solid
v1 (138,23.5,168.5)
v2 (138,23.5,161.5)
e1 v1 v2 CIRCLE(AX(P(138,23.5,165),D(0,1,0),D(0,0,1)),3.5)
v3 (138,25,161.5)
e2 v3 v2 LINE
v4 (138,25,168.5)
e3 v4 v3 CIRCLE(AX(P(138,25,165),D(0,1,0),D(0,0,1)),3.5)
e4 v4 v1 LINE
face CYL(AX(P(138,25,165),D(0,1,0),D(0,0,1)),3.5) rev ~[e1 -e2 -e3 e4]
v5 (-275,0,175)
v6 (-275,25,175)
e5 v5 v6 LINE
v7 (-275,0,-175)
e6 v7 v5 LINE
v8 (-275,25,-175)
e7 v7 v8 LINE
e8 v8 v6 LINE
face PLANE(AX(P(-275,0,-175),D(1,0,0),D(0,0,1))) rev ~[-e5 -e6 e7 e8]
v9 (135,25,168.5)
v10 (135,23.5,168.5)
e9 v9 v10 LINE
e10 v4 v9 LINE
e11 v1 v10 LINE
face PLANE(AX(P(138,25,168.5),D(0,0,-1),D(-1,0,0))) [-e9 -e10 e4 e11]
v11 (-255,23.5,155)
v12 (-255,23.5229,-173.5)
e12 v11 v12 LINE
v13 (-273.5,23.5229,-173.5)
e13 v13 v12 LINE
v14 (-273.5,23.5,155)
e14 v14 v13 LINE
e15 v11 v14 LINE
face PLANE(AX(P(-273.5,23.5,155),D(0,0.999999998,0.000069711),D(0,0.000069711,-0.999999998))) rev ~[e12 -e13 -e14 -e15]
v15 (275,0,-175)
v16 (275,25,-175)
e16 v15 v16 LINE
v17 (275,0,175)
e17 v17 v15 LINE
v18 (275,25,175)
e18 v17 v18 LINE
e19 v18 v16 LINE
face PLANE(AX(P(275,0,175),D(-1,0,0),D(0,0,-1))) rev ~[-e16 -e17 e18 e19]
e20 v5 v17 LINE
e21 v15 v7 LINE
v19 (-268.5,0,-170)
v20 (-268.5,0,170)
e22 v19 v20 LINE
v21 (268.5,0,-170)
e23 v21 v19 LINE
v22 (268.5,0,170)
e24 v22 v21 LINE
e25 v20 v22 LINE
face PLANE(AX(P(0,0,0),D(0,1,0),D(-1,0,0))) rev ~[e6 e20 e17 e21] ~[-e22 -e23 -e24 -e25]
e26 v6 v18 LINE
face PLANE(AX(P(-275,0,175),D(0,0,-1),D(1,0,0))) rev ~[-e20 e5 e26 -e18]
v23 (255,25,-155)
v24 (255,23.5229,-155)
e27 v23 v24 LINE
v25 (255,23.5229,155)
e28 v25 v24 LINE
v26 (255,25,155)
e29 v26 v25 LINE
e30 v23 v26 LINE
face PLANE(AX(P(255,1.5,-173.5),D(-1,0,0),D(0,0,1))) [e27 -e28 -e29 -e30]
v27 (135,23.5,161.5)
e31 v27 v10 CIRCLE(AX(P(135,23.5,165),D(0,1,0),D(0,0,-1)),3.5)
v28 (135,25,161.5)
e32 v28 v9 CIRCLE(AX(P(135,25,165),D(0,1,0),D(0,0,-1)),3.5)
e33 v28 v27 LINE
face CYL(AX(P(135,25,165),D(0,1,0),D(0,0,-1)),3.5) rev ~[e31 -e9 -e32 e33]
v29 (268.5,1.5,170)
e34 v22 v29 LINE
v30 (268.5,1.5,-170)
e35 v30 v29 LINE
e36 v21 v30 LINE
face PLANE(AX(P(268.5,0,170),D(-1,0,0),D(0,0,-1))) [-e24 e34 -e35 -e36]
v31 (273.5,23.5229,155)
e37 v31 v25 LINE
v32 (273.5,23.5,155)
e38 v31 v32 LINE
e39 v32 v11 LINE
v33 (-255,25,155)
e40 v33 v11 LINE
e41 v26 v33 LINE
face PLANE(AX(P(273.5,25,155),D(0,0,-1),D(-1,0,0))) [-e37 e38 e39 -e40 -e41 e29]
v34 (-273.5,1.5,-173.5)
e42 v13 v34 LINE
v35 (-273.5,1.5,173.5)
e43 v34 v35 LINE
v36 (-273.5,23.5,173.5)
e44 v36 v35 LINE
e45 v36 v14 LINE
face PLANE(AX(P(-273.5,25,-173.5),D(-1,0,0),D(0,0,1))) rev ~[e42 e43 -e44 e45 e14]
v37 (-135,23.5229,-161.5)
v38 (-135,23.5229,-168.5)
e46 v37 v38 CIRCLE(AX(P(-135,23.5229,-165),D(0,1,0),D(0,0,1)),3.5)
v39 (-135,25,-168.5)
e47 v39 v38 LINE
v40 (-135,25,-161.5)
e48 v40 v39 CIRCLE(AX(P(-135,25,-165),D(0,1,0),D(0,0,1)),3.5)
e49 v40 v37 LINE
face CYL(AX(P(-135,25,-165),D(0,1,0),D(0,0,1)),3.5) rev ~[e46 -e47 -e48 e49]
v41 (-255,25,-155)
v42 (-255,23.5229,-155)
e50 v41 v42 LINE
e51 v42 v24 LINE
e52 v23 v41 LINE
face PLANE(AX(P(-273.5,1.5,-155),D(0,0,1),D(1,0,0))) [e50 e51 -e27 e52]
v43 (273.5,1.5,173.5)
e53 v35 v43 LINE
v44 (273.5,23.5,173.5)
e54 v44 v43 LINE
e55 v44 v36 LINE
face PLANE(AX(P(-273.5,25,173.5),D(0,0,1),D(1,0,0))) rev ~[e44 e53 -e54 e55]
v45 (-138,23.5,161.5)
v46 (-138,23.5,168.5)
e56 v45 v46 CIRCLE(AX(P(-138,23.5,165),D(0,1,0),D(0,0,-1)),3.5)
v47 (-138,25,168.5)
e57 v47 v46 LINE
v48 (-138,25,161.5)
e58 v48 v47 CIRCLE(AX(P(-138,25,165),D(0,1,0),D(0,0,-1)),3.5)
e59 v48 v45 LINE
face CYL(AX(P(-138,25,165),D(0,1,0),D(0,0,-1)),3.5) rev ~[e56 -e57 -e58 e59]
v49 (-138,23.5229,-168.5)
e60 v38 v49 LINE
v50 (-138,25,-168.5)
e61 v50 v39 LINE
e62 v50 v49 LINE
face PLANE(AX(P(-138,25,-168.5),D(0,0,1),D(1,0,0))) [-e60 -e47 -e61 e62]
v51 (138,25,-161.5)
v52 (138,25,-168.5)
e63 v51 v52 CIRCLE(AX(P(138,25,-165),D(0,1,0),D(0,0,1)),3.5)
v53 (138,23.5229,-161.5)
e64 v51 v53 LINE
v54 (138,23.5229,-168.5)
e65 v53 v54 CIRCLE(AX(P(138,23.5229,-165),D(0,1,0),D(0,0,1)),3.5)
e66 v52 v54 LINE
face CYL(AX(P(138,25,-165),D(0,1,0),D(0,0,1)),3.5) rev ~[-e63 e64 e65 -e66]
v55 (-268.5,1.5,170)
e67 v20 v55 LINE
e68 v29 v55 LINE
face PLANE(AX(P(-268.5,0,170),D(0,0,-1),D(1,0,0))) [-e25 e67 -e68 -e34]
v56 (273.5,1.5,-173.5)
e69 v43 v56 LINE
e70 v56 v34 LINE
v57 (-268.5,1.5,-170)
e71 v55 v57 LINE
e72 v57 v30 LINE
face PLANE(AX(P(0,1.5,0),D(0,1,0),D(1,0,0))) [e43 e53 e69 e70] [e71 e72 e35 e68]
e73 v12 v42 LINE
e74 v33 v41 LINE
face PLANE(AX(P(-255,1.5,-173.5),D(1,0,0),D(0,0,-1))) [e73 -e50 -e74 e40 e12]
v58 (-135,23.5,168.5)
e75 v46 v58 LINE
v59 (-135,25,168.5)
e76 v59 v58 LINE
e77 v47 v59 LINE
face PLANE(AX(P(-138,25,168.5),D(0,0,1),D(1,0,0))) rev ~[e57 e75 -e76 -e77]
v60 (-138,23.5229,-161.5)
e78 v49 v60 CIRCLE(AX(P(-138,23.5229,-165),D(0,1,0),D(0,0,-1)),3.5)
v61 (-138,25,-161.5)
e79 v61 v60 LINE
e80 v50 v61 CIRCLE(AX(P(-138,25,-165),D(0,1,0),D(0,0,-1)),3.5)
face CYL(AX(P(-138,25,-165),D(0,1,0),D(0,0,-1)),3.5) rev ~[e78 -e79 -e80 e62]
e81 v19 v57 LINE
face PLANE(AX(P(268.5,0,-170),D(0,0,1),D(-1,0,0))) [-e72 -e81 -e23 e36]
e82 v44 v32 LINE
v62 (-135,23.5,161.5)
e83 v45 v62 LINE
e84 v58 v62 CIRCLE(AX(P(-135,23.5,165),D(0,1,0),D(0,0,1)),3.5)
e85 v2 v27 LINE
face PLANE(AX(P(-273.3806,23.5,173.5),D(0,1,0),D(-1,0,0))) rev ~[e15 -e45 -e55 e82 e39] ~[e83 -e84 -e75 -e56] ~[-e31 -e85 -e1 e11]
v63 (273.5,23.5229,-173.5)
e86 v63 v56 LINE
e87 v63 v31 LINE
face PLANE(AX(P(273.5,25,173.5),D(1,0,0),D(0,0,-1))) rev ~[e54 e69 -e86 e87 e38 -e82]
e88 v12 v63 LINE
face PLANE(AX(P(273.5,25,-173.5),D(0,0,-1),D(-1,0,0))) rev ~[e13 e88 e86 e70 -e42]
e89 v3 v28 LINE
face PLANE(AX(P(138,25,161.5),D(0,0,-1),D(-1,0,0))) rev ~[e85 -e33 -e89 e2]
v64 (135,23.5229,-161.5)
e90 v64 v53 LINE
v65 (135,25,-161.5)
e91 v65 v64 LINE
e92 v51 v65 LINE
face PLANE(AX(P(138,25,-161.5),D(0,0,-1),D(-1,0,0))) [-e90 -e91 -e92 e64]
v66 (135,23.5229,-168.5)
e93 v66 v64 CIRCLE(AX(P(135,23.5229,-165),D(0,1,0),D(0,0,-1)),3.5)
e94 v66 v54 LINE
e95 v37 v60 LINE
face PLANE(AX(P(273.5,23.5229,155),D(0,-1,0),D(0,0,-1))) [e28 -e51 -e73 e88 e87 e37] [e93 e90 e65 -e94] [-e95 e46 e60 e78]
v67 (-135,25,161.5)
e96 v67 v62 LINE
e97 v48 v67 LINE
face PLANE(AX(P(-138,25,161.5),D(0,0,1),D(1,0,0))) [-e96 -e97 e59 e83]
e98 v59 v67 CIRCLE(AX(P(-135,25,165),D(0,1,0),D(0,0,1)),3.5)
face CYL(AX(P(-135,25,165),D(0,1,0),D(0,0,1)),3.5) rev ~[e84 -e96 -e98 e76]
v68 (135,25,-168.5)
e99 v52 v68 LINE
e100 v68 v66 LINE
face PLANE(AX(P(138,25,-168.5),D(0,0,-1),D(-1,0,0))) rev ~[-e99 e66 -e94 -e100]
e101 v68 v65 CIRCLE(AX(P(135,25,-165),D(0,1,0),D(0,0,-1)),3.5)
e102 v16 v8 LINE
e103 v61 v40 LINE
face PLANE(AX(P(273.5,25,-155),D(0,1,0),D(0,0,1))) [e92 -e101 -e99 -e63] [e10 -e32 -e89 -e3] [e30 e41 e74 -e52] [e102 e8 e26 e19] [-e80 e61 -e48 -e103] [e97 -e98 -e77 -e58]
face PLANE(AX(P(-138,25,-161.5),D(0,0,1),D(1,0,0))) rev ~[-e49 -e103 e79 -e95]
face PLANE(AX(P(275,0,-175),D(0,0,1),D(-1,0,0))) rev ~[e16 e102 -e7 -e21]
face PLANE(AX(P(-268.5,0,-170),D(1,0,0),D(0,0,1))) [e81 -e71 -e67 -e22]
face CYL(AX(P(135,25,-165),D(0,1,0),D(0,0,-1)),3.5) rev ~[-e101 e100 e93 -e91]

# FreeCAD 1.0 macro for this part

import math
import FreeCAD as App
import Part
import Sketcher
Q = App.Units.Quantity


def add_polygon(sketch, points):
    """Adds a closed chain of lines whose ends are joined by coincident constraints."""
    first, n = sketch.GeometryCount, len(points)
    for a, b in zip(points, points[1:] + points[:1]):
        sketch.addGeometry(Part.LineSegment(App.Vector(*a, 0), App.Vector(*b, 0)), False)
    for i in range(n):
        sketch.addConstraint(Sketcher.Constraint("Coincident", first + i, 2, first + (i + 1) % n, 1))

doc = App.newDocument("Part")
body = doc.addObject("PartDesign::Body", "Body")

# Sketch on XZ plane
sketch1 = doc.addObject("Sketcher::SketchObject", "Sketch")
body.addObject(sketch1)
sketch1.AttachmentSupport = (doc.XZ_Plane, [""])
sketch1.MapMode = "FlatFace"
add_polygon(sketch1, [(275, 175), (275, -175), (-275, -175), (-275, 175)])  # lines 0-3
sketch1.addConstraint([
    Sketcher.Constraint("Vertical", 0),
    Sketcher.Constraint("Horizontal", 1),
    Sketcher.Constraint("Vertical", 2),
    Sketcher.Constraint("Horizontal", 3),
    Sketcher.Constraint("Symmetric", 0, 2, 2, 2, -1, 1),
    Sketcher.Constraint("DistanceX", 1, 2, 1, 1, Q("550 mm")),
    Sketcher.Constraint("DistanceY", 0, 2, 0, 1, Q("350 mm")),
])
pad1 = doc.addObject("PartDesign::Pad", "Pad")
body.addObject(pad1)
pad1.Profile = sketch1
pad1.Length = 25
pad1.Reversed = True

# Sketch on XZ plane
sketch2 = doc.addObject("Sketcher::SketchObject", "Sketch001")
body.addObject(sketch2)
sketch2.AttachmentSupport = (doc.XZ_Plane, [""])
sketch2.MapMode = "FlatFace"
sketch2.AttachmentOffset = App.Placement(App.Vector(0, 0, -25), App.Rotation())
add_polygon(sketch2, [(274, 174), (274, -174), (-274, -174), (-274, 174)])  # lines 0-3
sketch2.addConstraint([
    Sketcher.Constraint("Vertical", 0),
    Sketcher.Constraint("Horizontal", 1),
    Sketcher.Constraint("Vertical", 2),
    Sketcher.Constraint("Horizontal", 3),
    Sketcher.Constraint("Symmetric", 0, 2, 2, 2, -1, 1),
    Sketcher.Constraint("DistanceX", 1, 2, 1, 1, Q("547 mm")),
    Sketcher.Constraint("DistanceY", 0, 2, 0, 1, Q("347 mm")),
])
pocket1 = doc.addObject("PartDesign::Pocket", "Pocket")
body.addObject(pocket1)
pocket1.Profile = sketch2
pocket1.Length = 23.5
pocket1.Reversed = True

# Sketch on XY plane
sketch3 = doc.addObject("Sketcher::SketchObject", "Sketch002")
body.addObject(sketch3)
sketch3.AttachmentSupport = (doc.XY_Plane, [""])
sketch3.MapMode = "FlatFace"
sketch3.AttachmentOffset = App.Placement(App.Vector(0, 0, 173.5), App.Rotation())
add_polygon(sketch3, [(-273.5, 25), (273.5, 25), (273.5, 23.5), (-273.5, 23.5)])  # lines 0-3
sketch3.addConstraint([
    Sketcher.Constraint("Horizontal", 0),
    Sketcher.Constraint("Vertical", 1),
    Sketcher.Constraint("Horizontal", 2),
    Sketcher.Constraint("Vertical", 3),
    Sketcher.Constraint("DistanceY", 1, 2, 1, 1, Q("1.5 mm")),
    Sketcher.Constraint("DistanceX", 0, 1, 0, 2, Q("547 mm")),
    Sketcher.Constraint("DistanceY", -1, 1, 0, 2, Q("25 mm")),
    Sketcher.Constraint("DistanceX", -1, 1, 0, 2, Q("273.5 mm")),
])
pad2 = doc.addObject("PartDesign::Pad", "Pad001")
body.addObject(pad2)
pad2.Profile = sketch3
pad2.Length = 18.5
pad2.Reversed = True

# Sketch on YZ plane
sketch4 = doc.addObject("Sketcher::SketchObject", "Sketch003")
body.addObject(sketch4)
sketch4.AttachmentSupport = (doc.YZ_Plane, [""])
sketch4.MapMode = "FlatFace"
sketch4.AttachmentOffset = App.Placement(App.Vector(0, 0, -273.5), App.Rotation())
add_polygon(sketch4, [(25, -173.5), (25, 155), (23.5, 155), (23.5, -173.5)])  # lines 0-3
sketch4.addConstraint([
    Sketcher.Constraint("Vertical", 0),
    Sketcher.Constraint("Horizontal", 1),
    Sketcher.Constraint("Horizontal", 3),
    Sketcher.Constraint("DistanceX", 1, 2, 1, 1, Q("1.5 mm")),
    Sketcher.Constraint("DistanceY", 0, 1, 0, 2, Q("328.5 mm")),
    Sketcher.Constraint("DistanceX", -1, 1, 0, 2, Q("25 mm")),
    Sketcher.Constraint("DistanceY", -1, 1, 0, 2, Q("155 mm")),
    Sketcher.Constraint("DistanceX", 3, 1, 3, 2, Q("1.477 mm")),
])
pad3 = doc.addObject("PartDesign::Pad", "Pad002")
body.addObject(pad3)
pad3.Profile = sketch4
pad3.Length = 18.5

# Sketch on XY plane
sketch5 = doc.addObject("Sketcher::SketchObject", "Sketch004")
body.addObject(sketch5)
sketch5.AttachmentSupport = (doc.XY_Plane, [""])
sketch5.MapMode = "FlatFace"
sketch5.AttachmentOffset = App.Placement(App.Vector(0, 0, -173.5), App.Rotation())
add_polygon(sketch5, [(273.5, 23.5), (273.5, 25), (-255, 25), (-255, 23.5)])  # lines 0-3
sketch5.addConstraint([
    Sketcher.Constraint("Vertical", 0),
    Sketcher.Constraint("Horizontal", 1),
    Sketcher.Constraint("Vertical", 2),
    Sketcher.Constraint("Horizontal", 3),
    Sketcher.Constraint("DistanceX", 1, 2, 1, 1, Q("528.5 mm")),
    Sketcher.Constraint("DistanceY", -1, 1, 0, 2, Q("25 mm")),
    Sketcher.Constraint("DistanceX", 1, 2, -1, 1, Q("255 mm")),
    Sketcher.Constraint("DistanceY", 0, 1, 0, 2, Q("1.477 mm")),
])
pad4 = doc.addObject("PartDesign::Pad", "Pad003")
body.addObject(pad4)
pad4.Profile = sketch5
pad4.Length = 18.5

# Sketch on YZ plane
sketch6 = doc.addObject("Sketcher::SketchObject", "Sketch005")
body.addObject(sketch6)
sketch6.AttachmentSupport = (doc.YZ_Plane, [""])
sketch6.MapMode = "FlatFace"
sketch6.AttachmentOffset = App.Placement(App.Vector(0, 0, 273.5), App.Rotation())
add_polygon(sketch6, [(25, 155), (25, -155), (23.5, -155), (23.5, 155)])  # lines 0-3
sketch6.addConstraint([
    Sketcher.Constraint("Vertical", 0),
    Sketcher.Constraint("Horizontal", 1),
    Sketcher.Constraint("Vertical", 2),
    Sketcher.Constraint("Horizontal", 3),
    Sketcher.Constraint("DistanceY", 0, 2, 0, 1, Q("310 mm")),
    Sketcher.Constraint("DistanceX", -1, 1, 0, 2, Q("25 mm")),
    Sketcher.Constraint("DistanceY", 0, 2, -1, 1, Q("155 mm")),
    Sketcher.Constraint("DistanceX", 1, 2, 1, 1, Q("1.477 mm")),
])
pad5 = doc.addObject("PartDesign::Pad", "Pad004")
body.addObject(pad5)
pad5.Profile = sketch6
pad5.Length = 18.5
pad5.Reversed = True

# Sketch on XZ plane
sketch7 = doc.addObject("Sketcher::SketchObject", "Sketch006")
body.addObject(sketch7)
sketch7.AttachmentSupport = (doc.XZ_Plane, [""])
sketch7.MapMode = "FlatFace"
add_polygon(sketch7, [(-268, -170), (268, -170), (268, 170), (-268, 170)])  # lines 0-3
sketch7.addConstraint([
    Sketcher.Constraint("Horizontal", 0),
    Sketcher.Constraint("Vertical", 1),
    Sketcher.Constraint("Horizontal", 2),
    Sketcher.Constraint("Vertical", 3),
    Sketcher.Constraint("Symmetric", 0, 2, 2, 2, -1, 1),
    Sketcher.Constraint("DistanceX", 0, 1, 0, 2, Q("537 mm")),
    Sketcher.Constraint("DistanceY", 1, 1, 1, 2, Q("340 mm")),
])
pocket2 = doc.addObject("PartDesign::Pocket", "Pocket001")
body.addObject(pocket2)
pocket2.Profile = sketch7
pocket2.Length = 10

# Sketch on XZ plane
sketch8 = doc.addObject("Sketcher::SketchObject", "Sketch007")
body.addObject(sketch8)
sketch8.AttachmentSupport = (doc.XZ_Plane, [""])
sketch8.MapMode = "FlatFace"
sketch8.AttachmentOffset = App.Placement(App.Vector(0, 0, -25), App.Rotation())
sketch8.addGeometry([
    Part.LineSegment(App.Vector(-135, 161.5, 0), App.Vector(-138, 161.5, 0)),  # 0
    Part.ArcOfCircle(Part.Circle(App.Vector(-138, 165, 0), App.Vector(0, 0, 1), 3.5), math.radians(90), math.radians(270)),  # 1
    Part.LineSegment(App.Vector(-138, 168.5, 0), App.Vector(-135, 168.5, 0)),  # 2
    Part.ArcOfCircle(Part.Circle(App.Vector(-135, 165, 0), App.Vector(0, 0, 1), 3.5), math.radians(-90), math.radians(90)),  # 3
    Part.ArcOfCircle(Part.Circle(App.Vector(138, 165, 0), App.Vector(0, 0, 1), 3.5), math.radians(-90), math.radians(90)),  # 4
    Part.LineSegment(App.Vector(138, 161.5, 0), App.Vector(135, 161.5, 0)),  # 5
    Part.ArcOfCircle(Part.Circle(App.Vector(135, 165, 0), App.Vector(0, 0, 1), 3.5), math.radians(90), math.radians(270)),  # 6
    Part.LineSegment(App.Vector(135, 168.5, 0), App.Vector(138, 168.5, 0)),  # 7
    Part.ArcOfCircle(Part.Circle(App.Vector(-138, -165, 0), App.Vector(0, 0, 1), 3.5), math.radians(90), math.radians(270)),  # 8
    Part.LineSegment(App.Vector(-138, -161.5, 0), App.Vector(-135, -161.5, 0)),  # 9
    Part.ArcOfCircle(Part.Circle(App.Vector(-135, -165, 0), App.Vector(0, 0, 1), 3.5), math.radians(-90), math.radians(90)),  # 10
    Part.LineSegment(App.Vector(-135, -168.5, 0), App.Vector(-138, -168.5, 0)),  # 11
    Part.LineSegment(App.Vector(138, -168.5, 0), App.Vector(135, -168.5, 0)),  # 12
    Part.ArcOfCircle(Part.Circle(App.Vector(135, -165, 0), App.Vector(0, 0, 1), 3.5), math.radians(90), math.radians(270)),  # 13
    Part.LineSegment(App.Vector(135, -161.5, 0), App.Vector(138, -161.5, 0)),  # 14
    Part.ArcOfCircle(Part.Circle(App.Vector(138, -165, 0), App.Vector(0, 0, 1), 3.5), math.radians(-90), math.radians(90)),  # 15
], False)
sketch8.addConstraint([
    Sketcher.Constraint("Tangent", 0, 2, 1, 2),
    Sketcher.Constraint("Tangent", 1, 1, 2, 1),
    Sketcher.Constraint("Tangent", 2, 2, 3, 2),
    Sketcher.Constraint("Tangent", 3, 1, 0, 1),
    Sketcher.Constraint("Tangent", 4, 1, 5, 1),
    Sketcher.Constraint("Tangent", 5, 2, 6, 2),
    Sketcher.Constraint("Tangent", 6, 1, 7, 1),
    Sketcher.Constraint("Tangent", 7, 2, 4, 2),
    Sketcher.Constraint("Tangent", 8, 1, 9, 1),
    Sketcher.Constraint("Tangent", 9, 2, 10, 2),
    Sketcher.Constraint("Tangent", 10, 1, 11, 1),
    Sketcher.Constraint("Tangent", 11, 2, 8, 2),
    Sketcher.Constraint("Tangent", 12, 2, 13, 2),
    Sketcher.Constraint("Tangent", 13, 1, 14, 1),
    Sketcher.Constraint("Tangent", 14, 2, 15, 2),
    Sketcher.Constraint("Tangent", 15, 1, 12, 1),
    Sketcher.Constraint("Horizontal", 0),
    Sketcher.Constraint("Horizontal", 2),
    Sketcher.Constraint("Horizontal", 5),
    Sketcher.Constraint("Horizontal", 7),
    Sketcher.Constraint("Horizontal", 9),
    Sketcher.Constraint("Horizontal", 11),
    Sketcher.Constraint("Horizontal", 12),
    Sketcher.Constraint("Horizontal", 14),
    Sketcher.Constraint("Equal", 3, 4),
    Sketcher.Constraint("Equal", 6, 8),
    Sketcher.Constraint("Equal", 10, 13),
    Sketcher.Constraint("Symmetric", 4, 3, 8, 3, -1, 1),
    Sketcher.Constraint("Symmetric", 3, 3, 13, 3, -1, 1),
    Sketcher.Constraint("Symmetric", 1, 3, 4, 3, -2),
    Sketcher.Constraint("Vertical", 3, 3, 10, 3),
    Sketcher.Constraint("Vertical", 6, 3, 13, 3),
    Sketcher.Constraint("Vertical", 4, 3, 15, 3),
    Sketcher.Constraint("Radius", 1, Q("3.5 mm")),
    Sketcher.Constraint("DistanceX", 0, 2, 0, 1, Q("3 mm")),
    Sketcher.Constraint("DistanceX", 1, 3, -1, 1, Q("138 mm")),
    Sketcher.Constraint("DistanceY", -1, 1, 1, 3, Q("165 mm")),
])
pocket3 = doc.addObject("PartDesign::Pocket", "Pocket002")
body.addObject(pocket3)
pocket3.Profile = sketch8
pocket3.Length = 10
pocket3.Reversed = True

doc.recompute()
